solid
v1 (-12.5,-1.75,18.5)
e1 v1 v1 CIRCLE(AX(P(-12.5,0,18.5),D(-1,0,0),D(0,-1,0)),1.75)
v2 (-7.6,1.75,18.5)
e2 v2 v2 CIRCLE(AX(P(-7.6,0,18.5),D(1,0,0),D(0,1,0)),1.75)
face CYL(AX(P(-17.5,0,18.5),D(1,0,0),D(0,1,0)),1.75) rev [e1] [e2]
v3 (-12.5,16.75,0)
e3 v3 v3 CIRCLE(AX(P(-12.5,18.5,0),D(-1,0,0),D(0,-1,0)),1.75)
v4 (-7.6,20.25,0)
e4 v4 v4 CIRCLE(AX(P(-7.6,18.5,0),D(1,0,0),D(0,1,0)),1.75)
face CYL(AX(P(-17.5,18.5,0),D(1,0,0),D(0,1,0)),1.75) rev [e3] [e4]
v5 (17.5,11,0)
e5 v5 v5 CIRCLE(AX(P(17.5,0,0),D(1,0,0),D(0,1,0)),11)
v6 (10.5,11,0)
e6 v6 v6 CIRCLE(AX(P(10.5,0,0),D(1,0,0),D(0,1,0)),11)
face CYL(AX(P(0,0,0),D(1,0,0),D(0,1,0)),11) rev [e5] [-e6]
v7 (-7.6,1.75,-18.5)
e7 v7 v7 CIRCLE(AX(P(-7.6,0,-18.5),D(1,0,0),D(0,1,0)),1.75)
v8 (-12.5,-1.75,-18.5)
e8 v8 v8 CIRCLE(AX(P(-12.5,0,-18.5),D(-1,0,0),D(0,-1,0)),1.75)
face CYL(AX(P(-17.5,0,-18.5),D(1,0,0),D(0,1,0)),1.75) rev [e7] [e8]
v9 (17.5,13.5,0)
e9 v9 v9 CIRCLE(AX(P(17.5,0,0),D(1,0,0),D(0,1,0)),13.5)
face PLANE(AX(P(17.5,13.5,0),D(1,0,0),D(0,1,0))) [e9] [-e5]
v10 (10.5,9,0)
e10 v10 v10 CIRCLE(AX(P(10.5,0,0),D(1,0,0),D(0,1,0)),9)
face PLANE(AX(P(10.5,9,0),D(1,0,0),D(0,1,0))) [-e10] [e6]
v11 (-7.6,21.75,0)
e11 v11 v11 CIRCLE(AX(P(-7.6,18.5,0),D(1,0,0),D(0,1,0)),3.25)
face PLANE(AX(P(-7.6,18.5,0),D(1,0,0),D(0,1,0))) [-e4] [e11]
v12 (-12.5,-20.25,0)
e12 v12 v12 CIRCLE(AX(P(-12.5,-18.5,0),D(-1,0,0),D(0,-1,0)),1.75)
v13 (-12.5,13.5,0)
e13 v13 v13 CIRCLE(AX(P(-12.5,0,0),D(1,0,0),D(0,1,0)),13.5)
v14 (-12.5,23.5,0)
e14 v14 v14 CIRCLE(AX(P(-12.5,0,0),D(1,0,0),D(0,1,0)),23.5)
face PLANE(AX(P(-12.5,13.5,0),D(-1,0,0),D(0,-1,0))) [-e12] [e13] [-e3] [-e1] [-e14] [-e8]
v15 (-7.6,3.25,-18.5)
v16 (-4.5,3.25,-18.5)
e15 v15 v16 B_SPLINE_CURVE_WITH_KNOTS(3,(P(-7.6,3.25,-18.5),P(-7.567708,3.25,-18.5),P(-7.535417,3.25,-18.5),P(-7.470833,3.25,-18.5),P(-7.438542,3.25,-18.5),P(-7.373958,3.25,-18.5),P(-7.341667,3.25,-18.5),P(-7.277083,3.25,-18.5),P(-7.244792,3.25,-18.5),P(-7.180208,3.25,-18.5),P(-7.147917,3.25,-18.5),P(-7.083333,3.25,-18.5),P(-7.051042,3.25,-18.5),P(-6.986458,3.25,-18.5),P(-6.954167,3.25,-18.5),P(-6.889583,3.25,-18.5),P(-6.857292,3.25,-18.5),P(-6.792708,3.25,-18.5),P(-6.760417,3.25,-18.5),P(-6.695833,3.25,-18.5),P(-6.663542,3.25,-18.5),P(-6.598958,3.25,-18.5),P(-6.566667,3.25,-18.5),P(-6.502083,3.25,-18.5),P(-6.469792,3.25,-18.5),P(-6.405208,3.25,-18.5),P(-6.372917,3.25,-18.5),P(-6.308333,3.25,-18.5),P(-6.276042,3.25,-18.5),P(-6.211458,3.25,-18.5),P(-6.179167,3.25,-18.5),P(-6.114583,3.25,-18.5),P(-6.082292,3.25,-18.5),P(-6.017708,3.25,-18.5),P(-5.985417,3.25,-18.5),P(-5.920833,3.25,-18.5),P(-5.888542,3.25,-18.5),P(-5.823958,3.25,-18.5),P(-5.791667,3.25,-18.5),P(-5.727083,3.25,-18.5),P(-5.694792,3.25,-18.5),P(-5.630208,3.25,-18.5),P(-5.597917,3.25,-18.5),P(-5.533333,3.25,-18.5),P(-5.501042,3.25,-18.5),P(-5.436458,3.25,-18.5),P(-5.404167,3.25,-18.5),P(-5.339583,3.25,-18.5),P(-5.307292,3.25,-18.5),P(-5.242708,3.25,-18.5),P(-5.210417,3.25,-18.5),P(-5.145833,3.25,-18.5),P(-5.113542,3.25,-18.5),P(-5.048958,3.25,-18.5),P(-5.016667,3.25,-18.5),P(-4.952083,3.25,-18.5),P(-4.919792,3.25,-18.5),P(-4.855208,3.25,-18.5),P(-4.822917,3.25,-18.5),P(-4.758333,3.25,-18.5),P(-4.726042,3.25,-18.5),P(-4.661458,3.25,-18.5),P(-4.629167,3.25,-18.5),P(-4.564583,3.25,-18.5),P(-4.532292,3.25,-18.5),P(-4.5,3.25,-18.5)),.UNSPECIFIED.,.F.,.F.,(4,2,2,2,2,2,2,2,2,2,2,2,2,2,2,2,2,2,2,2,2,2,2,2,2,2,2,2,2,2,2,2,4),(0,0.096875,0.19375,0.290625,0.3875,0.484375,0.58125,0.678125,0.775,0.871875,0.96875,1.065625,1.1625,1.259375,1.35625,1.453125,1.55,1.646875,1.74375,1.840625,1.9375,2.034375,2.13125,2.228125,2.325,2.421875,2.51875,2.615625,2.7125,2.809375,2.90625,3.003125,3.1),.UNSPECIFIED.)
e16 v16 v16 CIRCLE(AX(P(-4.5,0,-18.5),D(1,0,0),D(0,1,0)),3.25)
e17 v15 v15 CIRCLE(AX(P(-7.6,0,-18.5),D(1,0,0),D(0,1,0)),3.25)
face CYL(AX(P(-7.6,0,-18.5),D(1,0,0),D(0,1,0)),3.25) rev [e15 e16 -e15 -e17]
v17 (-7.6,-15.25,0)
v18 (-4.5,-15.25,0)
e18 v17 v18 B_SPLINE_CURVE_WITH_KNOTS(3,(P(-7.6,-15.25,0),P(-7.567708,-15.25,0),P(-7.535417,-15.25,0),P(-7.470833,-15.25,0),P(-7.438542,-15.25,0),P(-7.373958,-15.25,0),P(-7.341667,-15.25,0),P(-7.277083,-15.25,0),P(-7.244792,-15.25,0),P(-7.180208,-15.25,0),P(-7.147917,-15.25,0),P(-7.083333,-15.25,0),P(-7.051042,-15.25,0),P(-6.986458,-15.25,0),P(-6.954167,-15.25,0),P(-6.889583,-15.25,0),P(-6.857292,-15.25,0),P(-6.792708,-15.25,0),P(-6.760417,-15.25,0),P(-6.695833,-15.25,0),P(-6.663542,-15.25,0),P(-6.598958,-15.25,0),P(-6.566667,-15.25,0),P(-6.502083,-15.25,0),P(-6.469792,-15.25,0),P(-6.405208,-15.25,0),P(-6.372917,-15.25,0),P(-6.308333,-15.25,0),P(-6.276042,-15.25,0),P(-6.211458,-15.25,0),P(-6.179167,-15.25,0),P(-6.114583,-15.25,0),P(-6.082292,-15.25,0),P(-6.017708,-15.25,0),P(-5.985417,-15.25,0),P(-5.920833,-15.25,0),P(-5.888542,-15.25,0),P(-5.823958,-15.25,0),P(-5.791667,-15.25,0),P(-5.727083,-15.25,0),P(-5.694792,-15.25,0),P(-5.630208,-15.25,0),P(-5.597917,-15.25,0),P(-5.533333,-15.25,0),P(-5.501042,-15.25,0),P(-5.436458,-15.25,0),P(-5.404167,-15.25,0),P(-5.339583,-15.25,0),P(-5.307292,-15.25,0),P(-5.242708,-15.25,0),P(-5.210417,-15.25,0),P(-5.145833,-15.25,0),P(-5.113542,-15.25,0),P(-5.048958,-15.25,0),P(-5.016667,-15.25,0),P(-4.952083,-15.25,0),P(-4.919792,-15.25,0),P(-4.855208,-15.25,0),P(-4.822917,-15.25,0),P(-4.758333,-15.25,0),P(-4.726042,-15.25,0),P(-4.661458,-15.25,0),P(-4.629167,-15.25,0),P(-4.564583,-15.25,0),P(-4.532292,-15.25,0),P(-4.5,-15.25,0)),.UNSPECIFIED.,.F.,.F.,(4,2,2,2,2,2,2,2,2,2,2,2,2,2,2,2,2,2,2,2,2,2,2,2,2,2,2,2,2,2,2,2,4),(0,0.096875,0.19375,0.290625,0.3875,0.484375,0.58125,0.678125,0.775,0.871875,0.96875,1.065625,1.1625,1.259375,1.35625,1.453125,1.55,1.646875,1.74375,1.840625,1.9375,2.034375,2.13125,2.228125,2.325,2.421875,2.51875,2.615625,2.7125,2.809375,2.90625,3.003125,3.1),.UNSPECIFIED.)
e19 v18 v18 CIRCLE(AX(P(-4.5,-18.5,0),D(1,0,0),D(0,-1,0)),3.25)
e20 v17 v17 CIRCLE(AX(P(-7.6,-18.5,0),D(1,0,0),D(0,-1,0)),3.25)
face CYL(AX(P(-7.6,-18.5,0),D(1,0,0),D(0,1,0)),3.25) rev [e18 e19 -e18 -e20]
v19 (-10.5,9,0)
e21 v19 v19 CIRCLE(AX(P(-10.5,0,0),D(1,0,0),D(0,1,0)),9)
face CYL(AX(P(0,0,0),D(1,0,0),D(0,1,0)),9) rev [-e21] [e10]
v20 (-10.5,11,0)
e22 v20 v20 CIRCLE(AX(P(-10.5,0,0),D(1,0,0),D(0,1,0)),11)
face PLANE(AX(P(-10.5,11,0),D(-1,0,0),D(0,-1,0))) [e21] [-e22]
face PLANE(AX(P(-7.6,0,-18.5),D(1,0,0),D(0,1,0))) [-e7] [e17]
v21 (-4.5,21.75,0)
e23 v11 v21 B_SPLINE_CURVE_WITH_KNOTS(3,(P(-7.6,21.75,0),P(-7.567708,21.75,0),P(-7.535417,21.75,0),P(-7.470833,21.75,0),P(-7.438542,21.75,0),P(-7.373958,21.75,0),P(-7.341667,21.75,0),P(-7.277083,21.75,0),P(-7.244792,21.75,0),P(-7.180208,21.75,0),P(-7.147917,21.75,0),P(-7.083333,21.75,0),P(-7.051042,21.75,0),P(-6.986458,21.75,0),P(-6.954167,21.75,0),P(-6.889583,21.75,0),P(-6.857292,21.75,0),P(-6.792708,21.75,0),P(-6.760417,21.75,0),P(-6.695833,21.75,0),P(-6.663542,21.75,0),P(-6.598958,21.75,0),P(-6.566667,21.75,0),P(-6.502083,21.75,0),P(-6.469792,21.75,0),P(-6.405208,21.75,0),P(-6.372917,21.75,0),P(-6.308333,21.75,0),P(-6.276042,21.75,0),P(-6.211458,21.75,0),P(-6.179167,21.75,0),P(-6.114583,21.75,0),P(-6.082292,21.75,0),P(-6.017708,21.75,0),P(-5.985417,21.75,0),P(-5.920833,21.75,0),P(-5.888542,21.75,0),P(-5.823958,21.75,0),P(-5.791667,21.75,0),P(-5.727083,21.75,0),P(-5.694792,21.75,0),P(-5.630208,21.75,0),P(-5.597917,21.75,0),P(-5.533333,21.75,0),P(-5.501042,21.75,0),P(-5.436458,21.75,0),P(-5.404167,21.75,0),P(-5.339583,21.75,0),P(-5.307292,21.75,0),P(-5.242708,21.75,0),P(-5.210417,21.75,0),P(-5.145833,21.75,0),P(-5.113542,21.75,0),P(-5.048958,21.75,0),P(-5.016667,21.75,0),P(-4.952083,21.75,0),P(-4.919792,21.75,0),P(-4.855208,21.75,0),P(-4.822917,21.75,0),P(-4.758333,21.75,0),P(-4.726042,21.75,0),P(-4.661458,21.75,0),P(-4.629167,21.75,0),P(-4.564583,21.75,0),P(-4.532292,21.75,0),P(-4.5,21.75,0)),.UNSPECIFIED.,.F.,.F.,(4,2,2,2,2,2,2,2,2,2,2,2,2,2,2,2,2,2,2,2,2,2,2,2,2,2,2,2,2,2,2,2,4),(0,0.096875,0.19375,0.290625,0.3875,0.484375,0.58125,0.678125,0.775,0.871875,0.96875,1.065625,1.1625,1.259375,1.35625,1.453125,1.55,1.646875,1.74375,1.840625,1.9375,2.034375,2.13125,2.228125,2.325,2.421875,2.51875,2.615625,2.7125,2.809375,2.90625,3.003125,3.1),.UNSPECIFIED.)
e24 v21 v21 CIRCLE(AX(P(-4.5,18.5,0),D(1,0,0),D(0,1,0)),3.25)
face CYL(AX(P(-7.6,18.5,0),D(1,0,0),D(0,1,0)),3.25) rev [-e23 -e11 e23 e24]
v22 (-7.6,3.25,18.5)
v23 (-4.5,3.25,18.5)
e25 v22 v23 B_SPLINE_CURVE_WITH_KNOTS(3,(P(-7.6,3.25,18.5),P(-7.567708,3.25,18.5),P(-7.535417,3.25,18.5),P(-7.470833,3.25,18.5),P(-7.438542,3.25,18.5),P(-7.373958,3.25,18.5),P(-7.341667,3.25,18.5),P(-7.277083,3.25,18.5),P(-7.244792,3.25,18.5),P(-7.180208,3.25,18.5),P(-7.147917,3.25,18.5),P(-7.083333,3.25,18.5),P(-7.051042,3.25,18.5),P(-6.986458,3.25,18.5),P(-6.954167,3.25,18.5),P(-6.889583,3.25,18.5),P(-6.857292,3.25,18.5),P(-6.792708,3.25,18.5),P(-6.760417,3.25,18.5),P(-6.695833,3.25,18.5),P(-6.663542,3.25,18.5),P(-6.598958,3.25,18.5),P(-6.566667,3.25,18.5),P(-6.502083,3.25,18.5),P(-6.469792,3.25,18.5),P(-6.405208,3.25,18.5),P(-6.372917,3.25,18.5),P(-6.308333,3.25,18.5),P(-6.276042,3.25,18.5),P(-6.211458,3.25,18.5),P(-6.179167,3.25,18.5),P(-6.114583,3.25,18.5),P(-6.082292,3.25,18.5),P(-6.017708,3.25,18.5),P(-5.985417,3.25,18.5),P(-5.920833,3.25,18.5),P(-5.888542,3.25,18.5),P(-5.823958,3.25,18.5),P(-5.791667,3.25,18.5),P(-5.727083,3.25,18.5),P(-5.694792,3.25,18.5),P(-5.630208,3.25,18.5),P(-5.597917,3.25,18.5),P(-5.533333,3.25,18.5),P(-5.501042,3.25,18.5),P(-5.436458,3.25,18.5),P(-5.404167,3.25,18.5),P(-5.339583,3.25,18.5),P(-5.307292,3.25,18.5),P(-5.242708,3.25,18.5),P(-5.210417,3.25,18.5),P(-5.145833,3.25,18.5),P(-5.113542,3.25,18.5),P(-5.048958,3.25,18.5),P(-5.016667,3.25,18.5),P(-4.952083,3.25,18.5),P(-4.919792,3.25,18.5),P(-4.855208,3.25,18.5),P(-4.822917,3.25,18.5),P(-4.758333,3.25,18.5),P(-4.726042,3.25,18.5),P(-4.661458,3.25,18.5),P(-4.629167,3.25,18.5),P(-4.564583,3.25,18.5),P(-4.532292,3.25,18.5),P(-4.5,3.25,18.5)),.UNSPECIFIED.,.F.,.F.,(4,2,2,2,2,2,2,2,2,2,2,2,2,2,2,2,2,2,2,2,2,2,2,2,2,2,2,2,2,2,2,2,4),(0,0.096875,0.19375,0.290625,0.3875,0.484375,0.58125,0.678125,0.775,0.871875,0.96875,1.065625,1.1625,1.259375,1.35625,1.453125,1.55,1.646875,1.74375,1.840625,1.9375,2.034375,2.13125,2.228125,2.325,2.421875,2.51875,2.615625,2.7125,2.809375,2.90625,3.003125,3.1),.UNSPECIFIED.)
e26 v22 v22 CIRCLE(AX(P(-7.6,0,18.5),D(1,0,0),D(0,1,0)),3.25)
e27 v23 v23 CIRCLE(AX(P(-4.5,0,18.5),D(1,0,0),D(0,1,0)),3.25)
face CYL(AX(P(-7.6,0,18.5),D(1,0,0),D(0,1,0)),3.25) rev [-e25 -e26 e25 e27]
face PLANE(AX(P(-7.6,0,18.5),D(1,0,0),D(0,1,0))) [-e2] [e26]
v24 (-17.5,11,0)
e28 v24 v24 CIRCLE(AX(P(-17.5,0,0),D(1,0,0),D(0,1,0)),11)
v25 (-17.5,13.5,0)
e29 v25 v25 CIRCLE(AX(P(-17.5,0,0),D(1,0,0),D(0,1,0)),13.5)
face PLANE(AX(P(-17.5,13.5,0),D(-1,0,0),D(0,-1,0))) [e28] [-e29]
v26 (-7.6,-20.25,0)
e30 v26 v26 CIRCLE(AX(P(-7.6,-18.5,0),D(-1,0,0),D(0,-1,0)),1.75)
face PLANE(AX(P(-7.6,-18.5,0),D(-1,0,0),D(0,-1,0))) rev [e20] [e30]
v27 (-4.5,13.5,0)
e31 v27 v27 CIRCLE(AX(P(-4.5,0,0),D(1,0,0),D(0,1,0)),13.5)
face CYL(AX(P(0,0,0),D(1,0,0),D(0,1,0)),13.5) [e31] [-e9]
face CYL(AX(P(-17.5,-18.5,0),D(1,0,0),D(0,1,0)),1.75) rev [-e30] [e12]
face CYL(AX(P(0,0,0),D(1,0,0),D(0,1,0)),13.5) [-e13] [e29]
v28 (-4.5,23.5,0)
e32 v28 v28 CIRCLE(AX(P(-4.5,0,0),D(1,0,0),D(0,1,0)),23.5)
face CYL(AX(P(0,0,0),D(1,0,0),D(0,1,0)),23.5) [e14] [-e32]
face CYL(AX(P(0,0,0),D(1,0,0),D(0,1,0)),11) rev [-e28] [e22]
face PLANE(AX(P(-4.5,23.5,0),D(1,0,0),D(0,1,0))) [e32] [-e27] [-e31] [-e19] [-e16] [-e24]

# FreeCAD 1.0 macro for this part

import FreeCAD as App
import Part
import Sketcher
from FreeCAD import Vector

doc = App.newDocument("Part")
body = doc.addObject("PartDesign::Body", "Body")

# Sketch on XY plane
sketch1 = body.newObject("Sketcher::SketchObject", "Sketch")
sketch1.AttachmentSupport = (doc.getObject("XY_Plane"), [""])
sketch1.MapMode = "FlatFace"
sketch1.addGeometry([
    Part.LineSegment(Vector(-17.5, 13.5, 0), Vector(-17.5, 11, 0)),  # 0
    Part.LineSegment(Vector(-17.5, 11, 0), Vector(-10.5, 11, 0)),  # 1
    Part.LineSegment(Vector(-10.5, 11, 0), Vector(-10.5, 9, 0)),  # 2
    Part.LineSegment(Vector(-10.5, 9, 0), Vector(10.5, 9, 0)),  # 3
    Part.LineSegment(Vector(10.5, 9, 0), Vector(10.5, 11, 0)),  # 4
    Part.LineSegment(Vector(10.5, 11, 0), Vector(17.5, 11, 0)),  # 5
    Part.LineSegment(Vector(17.5, 11, 0), Vector(17.5, 13.5, 0)),  # 6
    Part.LineSegment(Vector(17.5, 13.5, 0), Vector(-4.5, 13.5, 0)),  # 7
    Part.LineSegment(Vector(-4.5, 13.5, 0), Vector(-4.5, 23.5, 0)),  # 8
    Part.LineSegment(Vector(-4.5, 23.5, 0), Vector(-12.5, 23.5, 0)),  # 9
    Part.LineSegment(Vector(-12.5, 23.5, 0), Vector(-12.5, 13.5, 0)),  # 10
    Part.LineSegment(Vector(-12.5, 13.5, 0), Vector(-17.5, 13.5, 0)),  # 11
], False)
sketch1.addConstraint([
    Sketcher.Constraint("Coincident", 0, 2, 1, 1),
    Sketcher.Constraint("Coincident", 1, 2, 2, 1),
    Sketcher.Constraint("Coincident", 2, 2, 3, 1),
    Sketcher.Constraint("Coincident", 3, 2, 4, 1),
    Sketcher.Constraint("Coincident", 4, 2, 5, 1),
    Sketcher.Constraint("Coincident", 5, 2, 6, 1),
    Sketcher.Constraint("Coincident", 6, 2, 7, 1),
    Sketcher.Constraint("Coincident", 7, 2, 8, 1),
    Sketcher.Constraint("Coincident", 8, 2, 9, 1),
    Sketcher.Constraint("Coincident", 9, 2, 10, 1),
    Sketcher.Constraint("Coincident", 10, 2, 11, 1),
    Sketcher.Constraint("Coincident", 11, 2, 0, 1),
    Sketcher.Constraint("Vertical", 0),
    Sketcher.Constraint("Horizontal", 1),
    Sketcher.Constraint("Vertical", 2),
    Sketcher.Constraint("Horizontal", 3),
    Sketcher.Constraint("Vertical", 4),
    Sketcher.Constraint("Horizontal", 5),
    Sketcher.Constraint("Vertical", 6),
    Sketcher.Constraint("Horizontal", 7),
    Sketcher.Constraint("Vertical", 8),
    Sketcher.Constraint("Horizontal", 9),
    Sketcher.Constraint("Vertical", 10),
    Sketcher.Constraint("Horizontal", 11),
    Sketcher.Constraint("Symmetric", 1, 2, 4, 2, -2),
    Sketcher.Constraint("Symmetric", 6, 2, 11, 2, -2),
    Sketcher.Constraint("DistanceX", 1, 1, 1, 2, 7.0),
    Sketcher.Constraint("DistanceX", 3, 1, 3, 2, 21.0),
    Sketcher.Constraint("DistanceX", 7, 2, 7, 1, 22.0),
    Sketcher.Constraint("DistanceX", 9, 2, 9, 1, 8.0),
    Sketcher.Constraint("DistanceY", 2, 2, 2, 1, 2.0),
    Sketcher.Constraint("DistanceY", 8, 1, 8, 2, 10.0),
    Sketcher.Constraint("DistanceY", 0, 2, 0, 1, 2.5),
    Sketcher.Constraint("DistanceY", -1, 1, 0, 2, 11.0),
])
revolution = body.newObject("PartDesign::Revolution", "Revolution")
revolution.Profile = sketch1
revolution.ReferenceAxis = (sketch1, ["H_Axis"])
revolution.Angle = 360

# Sketch on YZ plane
sketch2 = body.newObject("Sketcher::SketchObject", "Sketch001")
sketch2.AttachmentSupport = (doc.getObject("YZ_Plane"), [""])
sketch2.MapMode = "FlatFace"
sketch2.AttachmentOffset = App.Placement(Vector(0, 0, -4.5), App.Rotation())
sketch2.addGeometry([
    Part.Circle(Vector(18.5, 0, 0), Vector(0, 0, 1), 3.25),
    Part.Circle(Vector(-18.5, 0, 0), Vector(0, 0, 1), 3.25),
    Part.Circle(Vector(0, -18.5, 0), Vector(0, 0, 1), 3.25),
    Part.Circle(Vector(0, 18.5, 0), Vector(0, 0, 1), 3.25),
], False)
sketch2.addConstraint([
    Sketcher.Constraint("Equal", 0, 1),
    Sketcher.Constraint("Equal", 1, 2),
    Sketcher.Constraint("Equal", 2, 3),
    Sketcher.Constraint("Symmetric", 0, 3, 1, 3, -1, 1),
    Sketcher.Constraint("Symmetric", 2, 3, 3, 3, -1, 1),
    Sketcher.Constraint("PointOnObject", 0, 3, -1),
    Sketcher.Constraint("PointOnObject", 2, 3, -2),
    Sketcher.Constraint("Diameter", 0, 6.5),
    Sketcher.Constraint("DistanceX", 1, 3, 0, 3, 37.0),
    Sketcher.Constraint("DistanceY", 2, 3, 3, 3, 37.0),
])
pocket1 = body.newObject("PartDesign::Pocket", "Pocket")
pocket1.Profile = sketch2
pocket1.Length = 3.1

# Sketch on YZ plane
sketch3 = body.newObject("Sketcher::SketchObject", "Sketch002")
sketch3.AttachmentSupport = (doc.getObject("YZ_Plane"), [""])
sketch3.MapMode = "FlatFace"
sketch3.AttachmentOffset = App.Placement(Vector(0, 0, -4.5), App.Rotation())
sketch3.addGeometry([
    Part.Circle(Vector(18.5, 0, 0), Vector(0, 0, 1), 1.75),
    Part.Circle(Vector(0, -18.5, 0), Vector(0, 0, 1), 1.75),
    Part.Circle(Vector(-18.5, 0, 0), Vector(0, 0, 1), 1.75),
    Part.Circle(Vector(0, 18.5, 0), Vector(0, 0, 1), 1.75),
], False)
sketch3.addConstraint([
    Sketcher.Constraint("Equal", 0, 1),
    Sketcher.Constraint("Equal", 1, 2),
    Sketcher.Constraint("Equal", 2, 3),
    Sketcher.Constraint("Symmetric", 0, 3, 2, 3, -1, 1),
    Sketcher.Constraint("Symmetric", 1, 3, 3, 3, -1, 1),
    Sketcher.Constraint("PointOnObject", 0, 3, -1),
    Sketcher.Constraint("PointOnObject", 1, 3, -2),
    Sketcher.Constraint("Diameter", 0, 3.5),
    Sketcher.Constraint("DistanceX", 2, 3, 0, 3, 37.0),
    Sketcher.Constraint("DistanceY", 1, 3, 3, 3, 37.0),
])
pocket2 = body.newObject("PartDesign::Pocket", "Pocket001")
pocket2.Profile = sketch3
pocket2.Type = "ThroughAll"

doc.recompute()
